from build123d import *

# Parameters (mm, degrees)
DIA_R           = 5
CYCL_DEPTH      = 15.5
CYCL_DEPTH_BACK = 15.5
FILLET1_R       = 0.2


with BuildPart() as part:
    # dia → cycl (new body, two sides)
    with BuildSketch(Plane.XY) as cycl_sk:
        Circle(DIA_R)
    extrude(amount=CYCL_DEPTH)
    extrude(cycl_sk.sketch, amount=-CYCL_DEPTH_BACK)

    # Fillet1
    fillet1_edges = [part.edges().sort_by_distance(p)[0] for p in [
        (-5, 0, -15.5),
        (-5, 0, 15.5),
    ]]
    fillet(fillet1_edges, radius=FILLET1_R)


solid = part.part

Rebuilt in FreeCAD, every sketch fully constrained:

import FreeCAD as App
import Part
import Sketcher
from FreeCAD import Vector
Q = App.Units.Quantity


def edges_at(feature, points):
    """Names of the edges that pass closest to the given points."""
    edges = feature.Shape.Edges
    near = lambda p: min(range(len(edges)), key=lambda i: edges[i].distToShape(Part.Vertex(*p))[0])
    return sorted({f"Edge{near(p) + 1}" for p in points})

doc = App.newDocument("Part")
body = doc.addObject("PartDesign::Body", "Body")

# Sketch on XY plane
sketch1 = body.newObject("Sketcher::SketchObject", "Sketch")
sketch1.AttachmentSupport = (doc.getObject("XY_Plane"), [""])
sketch1.MapMode = "FlatFace"
sketch1.addGeometry(Part.Circle(Vector(0, 0, 0), Vector(0, 0, 1), 5), False)
sketch1.addConstraint([
    Sketcher.Constraint("Coincident", 0, 3, -1, 1),
    Sketcher.Constraint("Diameter", 0, Q("10 mm")),
])
pad1 = body.newObject("PartDesign::Pad", "Pad")
pad1.Profile = sketch1
pad1.Type = "TwoLengths"
pad1.Length = 15.5
pad1.Length2 = 15.5
doc.recompute()

fillet = body.newObject("PartDesign::Fillet", "Fillet")
fillet.Base = (pad1, edges_at(pad1, [(-5, 0, -15.5), (-5, 0, 15.5)]))
fillet.Radius = 0.2

doc.recompute()
